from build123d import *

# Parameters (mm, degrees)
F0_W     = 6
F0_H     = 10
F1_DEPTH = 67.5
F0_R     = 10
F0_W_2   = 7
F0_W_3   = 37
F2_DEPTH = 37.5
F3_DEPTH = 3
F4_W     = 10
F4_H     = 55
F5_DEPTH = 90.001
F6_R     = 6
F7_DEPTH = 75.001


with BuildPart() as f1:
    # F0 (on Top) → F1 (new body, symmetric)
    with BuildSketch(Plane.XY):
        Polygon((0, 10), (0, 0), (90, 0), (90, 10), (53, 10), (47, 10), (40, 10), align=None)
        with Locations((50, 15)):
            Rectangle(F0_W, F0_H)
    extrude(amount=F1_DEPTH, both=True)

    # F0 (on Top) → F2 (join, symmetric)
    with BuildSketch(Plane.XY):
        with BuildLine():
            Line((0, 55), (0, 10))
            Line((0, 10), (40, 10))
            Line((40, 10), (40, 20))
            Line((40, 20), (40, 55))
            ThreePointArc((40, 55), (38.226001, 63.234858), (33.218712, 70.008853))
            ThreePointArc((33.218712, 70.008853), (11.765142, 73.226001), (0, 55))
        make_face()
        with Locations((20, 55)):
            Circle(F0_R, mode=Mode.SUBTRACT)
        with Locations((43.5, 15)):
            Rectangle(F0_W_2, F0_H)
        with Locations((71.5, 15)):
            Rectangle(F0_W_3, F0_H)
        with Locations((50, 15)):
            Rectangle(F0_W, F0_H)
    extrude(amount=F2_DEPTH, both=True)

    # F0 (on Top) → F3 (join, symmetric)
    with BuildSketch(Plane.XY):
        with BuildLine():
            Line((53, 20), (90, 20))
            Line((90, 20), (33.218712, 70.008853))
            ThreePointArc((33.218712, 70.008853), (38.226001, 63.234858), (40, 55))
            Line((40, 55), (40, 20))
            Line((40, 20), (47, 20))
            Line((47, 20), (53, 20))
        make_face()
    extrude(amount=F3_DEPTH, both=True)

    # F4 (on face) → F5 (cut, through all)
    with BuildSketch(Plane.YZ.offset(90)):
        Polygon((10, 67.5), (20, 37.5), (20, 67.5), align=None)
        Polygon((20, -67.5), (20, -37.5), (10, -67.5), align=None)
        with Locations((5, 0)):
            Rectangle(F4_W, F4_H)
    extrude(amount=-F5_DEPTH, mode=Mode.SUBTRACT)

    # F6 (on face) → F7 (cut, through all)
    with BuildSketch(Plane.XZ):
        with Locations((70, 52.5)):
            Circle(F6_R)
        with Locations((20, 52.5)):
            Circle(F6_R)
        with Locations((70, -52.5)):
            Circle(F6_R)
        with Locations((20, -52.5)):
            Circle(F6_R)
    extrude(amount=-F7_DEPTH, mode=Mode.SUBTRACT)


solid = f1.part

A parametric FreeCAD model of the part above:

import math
import FreeCAD as App
import Part
import Sketcher
from FreeCAD import Vector
Q = App.Units.Quantity

doc = App.newDocument("Part")
body = doc.addObject("PartDesign::Body", "Body")

sketch1 = body.newObject("Sketcher::SketchObject", "Sketch")
sketch1.AttachmentSupport = (doc.getObject("XY_Plane"), [""])
sketch1.MapMode = "FlatFace"
sketch1.addGeometry([
    Part.LineSegment(Vector(0, 10, 0), Vector(0, 0, 0)),
    Part.LineSegment(Vector(0, 0, 0), Vector(90, 0, 0)),
    Part.LineSegment(Vector(90, 0, 0), Vector(90, 10, 0)),
    Part.LineSegment(Vector(90, 10, 0), Vector(53, 10, 0)),
    Part.LineSegment(Vector(53, 10, 0), Vector(53, 20, 0)),
    Part.LineSegment(Vector(53, 20, 0), Vector(47, 20, 0)),
    Part.LineSegment(Vector(47, 20, 0), Vector(47, 10, 0)),
    Part.LineSegment(Vector(47, 10, 0), Vector(0, 10, 0)),
], False)
sketch1.addConstraint([
    Sketcher.Constraint("Coincident", 0, 2, 1, 1),
    Sketcher.Constraint("Coincident", 1, 2, 2, 1),
    Sketcher.Constraint("Coincident", 2, 2, 3, 1),
    Sketcher.Constraint("Coincident", 3, 2, 4, 1),
    Sketcher.Constraint("Coincident", 4, 2, 5, 1),
    Sketcher.Constraint("Coincident", 5, 2, 6, 1),
    Sketcher.Constraint("Coincident", 6, 2, 7, 1),
    Sketcher.Constraint("Coincident", 7, 2, 0, 1),
    Sketcher.Constraint("Vertical", 0),
    Sketcher.Constraint("Horizontal", 1),
    Sketcher.Constraint("Vertical", 2),
    Sketcher.Constraint("Horizontal", 3),
    Sketcher.Constraint("Vertical", 4),
    Sketcher.Constraint("Horizontal", 5),
    Sketcher.Constraint("Vertical", 6),
    Sketcher.Constraint("Horizontal", 7),
    Sketcher.Constraint("Coincident", 0, 2, -1, 1),
    Sketcher.Constraint("Horizontal", 3, 2, 6, 2),
    Sketcher.Constraint("Equal", 2, 4),
    Sketcher.Constraint("DistanceX", 1, 1, 1, 2, Q("90 mm")),
    Sketcher.Constraint("DistanceX", 3, 2, 3, 1, Q("37 mm")),
    Sketcher.Constraint("DistanceX", 5, 2, 5, 1, Q("6 mm")),
    Sketcher.Constraint("DistanceY", 0, 2, 0, 1, Q("10 mm")),
])
pad1 = body.newObject("PartDesign::Pad", "Pad")
pad1.Profile = sketch1
pad1.Length = 135
pad1.Midplane = True

sketch2 = body.newObject("Sketcher::SketchObject", "Sketch001")
sketch2.AttachmentSupport = (doc.getObject("XY_Plane"), [""])
sketch2.MapMode = "FlatFace"
sketch2.addGeometry([
    Part.LineSegment(Vector(0, 55, 0), Vector(0, 10, 0)),
    Part.LineSegment(Vector(0, 10, 0), Vector(90, 10, 0)),
    Part.LineSegment(Vector(90, 10, 0), Vector(90, 20, 0)),
    Part.LineSegment(Vector(90, 20, 0), Vector(40, 20, 0)),
    Part.LineSegment(Vector(40, 20, 0), Vector(40, 55, 0)),
    Part.ArcOfCircle(Part.Circle(Vector(19.999998, 54.999999, 0), Vector(0, 0, 1), 20.000002), math.radians(0.000002), math.radians(48.628731)),
    Part.ArcOfCircle(Part.Circle(Vector(20, 55, 0), Vector(0, 0, 1), 20), math.radians(48.628736), math.radians(179.999999)),
    Part.Circle(Vector(20, 55, 0), Vector(0, 0, 1), 10),
], False)
sketch2.addConstraint([
    Sketcher.Constraint("Coincident", 0, 2, 1, 1),
    Sketcher.Constraint("Coincident", 1, 2, 2, 1),
    Sketcher.Constraint("Coincident", 2, 2, 3, 1),
    Sketcher.Constraint("Coincident", 3, 2, 4, 1),
    Sketcher.Constraint("Tangent", 4, 2, 5, 1),
    Sketcher.Constraint("Tangent", 5, 2, 6, 1),
    Sketcher.Constraint("Tangent", 6, 2, 0, 1),
    Sketcher.Constraint("Vertical", 0),
    Sketcher.Constraint("Horizontal", 1),
    Sketcher.Constraint("Vertical", 2),
    Sketcher.Constraint("Horizontal", 3),
    Sketcher.Constraint("Vertical", 4),
    Sketcher.Constraint("Coincident", 7, 3, 5, 3),
    Sketcher.Constraint("PointOnObject", 0, 2, -2),
    Sketcher.Constraint("Horizontal", 4, 2, 6, 2),
    Sketcher.Constraint("Diameter", 7, Q("20 mm")),
    Sketcher.Constraint("Radius", 6, Q("20 mm")),
    Sketcher.Constraint("DistanceX", 1, 1, 1, 2, Q("90 mm")),
    Sketcher.Constraint("DistanceY", 0, 2, 0, 1, Q("45 mm")),
    Sketcher.Constraint("DistanceY", 2, 1, 2, 2, Q("10 mm")),
    Sketcher.Constraint("DistanceY", -1, 1, 5, 3, Q("54.999999 mm")),
    Sketcher.Constraint("DistanceX", 6, 3, 5, 2, Q("13.218712 mm")),
])
pad2 = body.newObject("PartDesign::Pad", "Pad001")
pad2.Profile = sketch2
pad2.Length = 75
pad2.Midplane = True

sketch3 = body.newObject("Sketcher::SketchObject", "Sketch002")
sketch3.AttachmentSupport = (doc.getObject("XY_Plane"), [""])
sketch3.MapMode = "FlatFace"
sketch3.addGeometry([
    Part.LineSegment(Vector(90, 20, 0), Vector(33.218712, 70.008853, 0)),
    Part.ArcOfCircle(Part.Circle(Vector(19.999998, 54.999999, 0), Vector(0, 0, 1), 20.000002), math.radians(0.000002), math.radians(48.628731)),
    Part.LineSegment(Vector(40, 55, 0), Vector(40, 20, 0)),
    Part.LineSegment(Vector(40, 20, 0), Vector(90, 20, 0)),
], False)
sketch3.addConstraint([
    Sketcher.Constraint("Tangent", 0, 2, 1, 2),
    Sketcher.Constraint("Tangent", 1, 1, 2, 1),
    Sketcher.Constraint("Coincident", 2, 2, 3, 1),
    Sketcher.Constraint("Coincident", 3, 2, 0, 1),
    Sketcher.Constraint("Vertical", 2),
    Sketcher.Constraint("Horizontal", 3),
    Sketcher.Constraint("DistanceX", 3, 1, 3, 2, Q("50 mm")),
    Sketcher.Constraint("DistanceY", 2, 2, 2, 1, Q("35 mm")),
    Sketcher.Constraint("DistanceY", -1, 1, 1, 3, Q("54.999999 mm")),
    Sketcher.Constraint("DistanceX", -1, 1, 1, 1, Q("40 mm")),
    Sketcher.Constraint("Radius", 1, Q("20.000002 mm")),
])
pad3 = body.newObject("PartDesign::Pad", "Pad002")
pad3.Profile = sketch3
pad3.Length = 6
pad3.Midplane = True

sketch4 = body.newObject("Sketcher::SketchObject", "Sketch003")
sketch4.AttachmentSupport = (doc.getObject("YZ_Plane"), [""])
sketch4.MapMode = "FlatFace"
sketch4.AttachmentOffset = App.Placement(Vector(0, 0, 90), App.Rotation())
sketch4.addGeometry([
    Part.LineSegment(Vector(10, 67.5, 0), Vector(20, 37.5, 0)),
    Part.LineSegment(Vector(20, 37.5, 0), Vector(20, 67.5, 0)),
    Part.LineSegment(Vector(20, 67.5, 0), Vector(10, 67.5, 0)),
    Part.LineSegment(Vector(20, -67.5, 0), Vector(20, -37.5, 0)),
    Part.LineSegment(Vector(20, -37.5, 0), Vector(10, -67.5, 0)),
    Part.LineSegment(Vector(10, -67.5, 0), Vector(20, -67.5, 0)),
    Part.LineSegment(Vector(0, 27.5, 0), Vector(0, -27.5, 0)),
    Part.LineSegment(Vector(0, -27.5, 0), Vector(10, -27.5, 0)),
    Part.LineSegment(Vector(10, -27.5, 0), Vector(10, 27.5, 0)),
    Part.LineSegment(Vector(10, 27.5, 0), Vector(0, 27.5, 0)),
], False)
sketch4.addConstraint([
    Sketcher.Constraint("Coincident", 0, 2, 1, 1),
    Sketcher.Constraint("Coincident", 1, 2, 2, 1),
    Sketcher.Constraint("Coincident", 2, 2, 0, 1),
    Sketcher.Constraint("Coincident", 3, 2, 4, 1),
    Sketcher.Constraint("Coincident", 4, 2, 5, 1),
    Sketcher.Constraint("Coincident", 5, 2, 3, 1),
    Sketcher.Constraint("Coincident", 6, 2, 7, 1),
    Sketcher.Constraint("Coincident", 7, 2, 8, 1),
    Sketcher.Constraint("Coincident", 8, 2, 9, 1),
    Sketcher.Constraint("Coincident", 9, 2, 6, 1),
    Sketcher.Constraint("Vertical", 1),
    Sketcher.Constraint("Horizontal", 2),
    Sketcher.Constraint("Vertical", 3),
    Sketcher.Constraint("Horizontal", 5),
    Sketcher.Constraint("Vertical", 6),
    Sketcher.Constraint("Horizontal", 7),
    Sketcher.Constraint("Vertical", 8),
    Sketcher.Constraint("Horizontal", 9),
    Sketcher.Constraint("Symmetric", 6, 2, 9, 2, -1, 1),
    Sketcher.Constraint("Symmetric", 0, 2, 3, 2, -1),
    Sketcher.Constraint("Symmetric", 2, 2, 4, 2, -1),
    Sketcher.Constraint("Vertical", 4, 2, 7, 2),
    Sketcher.Constraint("Equal", 5, 7),
    Sketcher.Constraint("DistanceX", 2, 2, 2, 1, Q("10 mm")),
    Sketcher.Constraint("DistanceY", 1, 1, 1, 2, Q("30 mm")),
    Sketcher.Constraint("DistanceY", 6, 2, 6, 1, Q("55 mm")),
    Sketcher.Constraint("DistanceY", 3, 2, 0, 2, Q("75 mm")),
])
pocket1 = body.newObject("PartDesign::Pocket", "Pocket")
pocket1.Profile = sketch4
pocket1.Type = "ThroughAll"

sketch5 = body.newObject("Sketcher::SketchObject", "Sketch004")
sketch5.AttachmentSupport = (doc.getObject("XZ_Plane"), [""])
sketch5.MapMode = "FlatFace"
sketch5.addGeometry([
    Part.Circle(Vector(70, 52.5, 0), Vector(0, 0, 1), 6),
    Part.Circle(Vector(20, 52.5, 0), Vector(0, 0, 1), 6),
    Part.Circle(Vector(70, -52.5, 0), Vector(0, 0, 1), 6),
    Part.Circle(Vector(20, -52.5, 0), Vector(0, 0, 1), 6),
], False)
sketch5.addConstraint([
    Sketcher.Constraint("Equal", 0, 1),
    Sketcher.Constraint("Equal", 1, 2),
    Sketcher.Constraint("Equal", 2, 3),
    Sketcher.Constraint("Symmetric", 0, 3, 2, 3, -1),
    Sketcher.Constraint("Symmetric", 1, 3, 3, 3, -1),
    Sketcher.Constraint("Horizontal", 0, 3, 1, 3),
    Sketcher.Constraint("Diameter", 0, Q("12 mm")),
    Sketcher.Constraint("DistanceX", -1, 1, 0, 3, Q("70 mm")),
    Sketcher.Constraint("DistanceX", -1, 1, 1, 3, Q("20 mm")),
    Sketcher.Constraint("DistanceY", 2, 3, 0, 3, Q("105 mm")),
])
pocket2 = body.newObject("PartDesign::Pocket", "Pocket001")
pocket2.Profile = sketch5
pocket2.Type = "ThroughAll"

doc.recompute()
